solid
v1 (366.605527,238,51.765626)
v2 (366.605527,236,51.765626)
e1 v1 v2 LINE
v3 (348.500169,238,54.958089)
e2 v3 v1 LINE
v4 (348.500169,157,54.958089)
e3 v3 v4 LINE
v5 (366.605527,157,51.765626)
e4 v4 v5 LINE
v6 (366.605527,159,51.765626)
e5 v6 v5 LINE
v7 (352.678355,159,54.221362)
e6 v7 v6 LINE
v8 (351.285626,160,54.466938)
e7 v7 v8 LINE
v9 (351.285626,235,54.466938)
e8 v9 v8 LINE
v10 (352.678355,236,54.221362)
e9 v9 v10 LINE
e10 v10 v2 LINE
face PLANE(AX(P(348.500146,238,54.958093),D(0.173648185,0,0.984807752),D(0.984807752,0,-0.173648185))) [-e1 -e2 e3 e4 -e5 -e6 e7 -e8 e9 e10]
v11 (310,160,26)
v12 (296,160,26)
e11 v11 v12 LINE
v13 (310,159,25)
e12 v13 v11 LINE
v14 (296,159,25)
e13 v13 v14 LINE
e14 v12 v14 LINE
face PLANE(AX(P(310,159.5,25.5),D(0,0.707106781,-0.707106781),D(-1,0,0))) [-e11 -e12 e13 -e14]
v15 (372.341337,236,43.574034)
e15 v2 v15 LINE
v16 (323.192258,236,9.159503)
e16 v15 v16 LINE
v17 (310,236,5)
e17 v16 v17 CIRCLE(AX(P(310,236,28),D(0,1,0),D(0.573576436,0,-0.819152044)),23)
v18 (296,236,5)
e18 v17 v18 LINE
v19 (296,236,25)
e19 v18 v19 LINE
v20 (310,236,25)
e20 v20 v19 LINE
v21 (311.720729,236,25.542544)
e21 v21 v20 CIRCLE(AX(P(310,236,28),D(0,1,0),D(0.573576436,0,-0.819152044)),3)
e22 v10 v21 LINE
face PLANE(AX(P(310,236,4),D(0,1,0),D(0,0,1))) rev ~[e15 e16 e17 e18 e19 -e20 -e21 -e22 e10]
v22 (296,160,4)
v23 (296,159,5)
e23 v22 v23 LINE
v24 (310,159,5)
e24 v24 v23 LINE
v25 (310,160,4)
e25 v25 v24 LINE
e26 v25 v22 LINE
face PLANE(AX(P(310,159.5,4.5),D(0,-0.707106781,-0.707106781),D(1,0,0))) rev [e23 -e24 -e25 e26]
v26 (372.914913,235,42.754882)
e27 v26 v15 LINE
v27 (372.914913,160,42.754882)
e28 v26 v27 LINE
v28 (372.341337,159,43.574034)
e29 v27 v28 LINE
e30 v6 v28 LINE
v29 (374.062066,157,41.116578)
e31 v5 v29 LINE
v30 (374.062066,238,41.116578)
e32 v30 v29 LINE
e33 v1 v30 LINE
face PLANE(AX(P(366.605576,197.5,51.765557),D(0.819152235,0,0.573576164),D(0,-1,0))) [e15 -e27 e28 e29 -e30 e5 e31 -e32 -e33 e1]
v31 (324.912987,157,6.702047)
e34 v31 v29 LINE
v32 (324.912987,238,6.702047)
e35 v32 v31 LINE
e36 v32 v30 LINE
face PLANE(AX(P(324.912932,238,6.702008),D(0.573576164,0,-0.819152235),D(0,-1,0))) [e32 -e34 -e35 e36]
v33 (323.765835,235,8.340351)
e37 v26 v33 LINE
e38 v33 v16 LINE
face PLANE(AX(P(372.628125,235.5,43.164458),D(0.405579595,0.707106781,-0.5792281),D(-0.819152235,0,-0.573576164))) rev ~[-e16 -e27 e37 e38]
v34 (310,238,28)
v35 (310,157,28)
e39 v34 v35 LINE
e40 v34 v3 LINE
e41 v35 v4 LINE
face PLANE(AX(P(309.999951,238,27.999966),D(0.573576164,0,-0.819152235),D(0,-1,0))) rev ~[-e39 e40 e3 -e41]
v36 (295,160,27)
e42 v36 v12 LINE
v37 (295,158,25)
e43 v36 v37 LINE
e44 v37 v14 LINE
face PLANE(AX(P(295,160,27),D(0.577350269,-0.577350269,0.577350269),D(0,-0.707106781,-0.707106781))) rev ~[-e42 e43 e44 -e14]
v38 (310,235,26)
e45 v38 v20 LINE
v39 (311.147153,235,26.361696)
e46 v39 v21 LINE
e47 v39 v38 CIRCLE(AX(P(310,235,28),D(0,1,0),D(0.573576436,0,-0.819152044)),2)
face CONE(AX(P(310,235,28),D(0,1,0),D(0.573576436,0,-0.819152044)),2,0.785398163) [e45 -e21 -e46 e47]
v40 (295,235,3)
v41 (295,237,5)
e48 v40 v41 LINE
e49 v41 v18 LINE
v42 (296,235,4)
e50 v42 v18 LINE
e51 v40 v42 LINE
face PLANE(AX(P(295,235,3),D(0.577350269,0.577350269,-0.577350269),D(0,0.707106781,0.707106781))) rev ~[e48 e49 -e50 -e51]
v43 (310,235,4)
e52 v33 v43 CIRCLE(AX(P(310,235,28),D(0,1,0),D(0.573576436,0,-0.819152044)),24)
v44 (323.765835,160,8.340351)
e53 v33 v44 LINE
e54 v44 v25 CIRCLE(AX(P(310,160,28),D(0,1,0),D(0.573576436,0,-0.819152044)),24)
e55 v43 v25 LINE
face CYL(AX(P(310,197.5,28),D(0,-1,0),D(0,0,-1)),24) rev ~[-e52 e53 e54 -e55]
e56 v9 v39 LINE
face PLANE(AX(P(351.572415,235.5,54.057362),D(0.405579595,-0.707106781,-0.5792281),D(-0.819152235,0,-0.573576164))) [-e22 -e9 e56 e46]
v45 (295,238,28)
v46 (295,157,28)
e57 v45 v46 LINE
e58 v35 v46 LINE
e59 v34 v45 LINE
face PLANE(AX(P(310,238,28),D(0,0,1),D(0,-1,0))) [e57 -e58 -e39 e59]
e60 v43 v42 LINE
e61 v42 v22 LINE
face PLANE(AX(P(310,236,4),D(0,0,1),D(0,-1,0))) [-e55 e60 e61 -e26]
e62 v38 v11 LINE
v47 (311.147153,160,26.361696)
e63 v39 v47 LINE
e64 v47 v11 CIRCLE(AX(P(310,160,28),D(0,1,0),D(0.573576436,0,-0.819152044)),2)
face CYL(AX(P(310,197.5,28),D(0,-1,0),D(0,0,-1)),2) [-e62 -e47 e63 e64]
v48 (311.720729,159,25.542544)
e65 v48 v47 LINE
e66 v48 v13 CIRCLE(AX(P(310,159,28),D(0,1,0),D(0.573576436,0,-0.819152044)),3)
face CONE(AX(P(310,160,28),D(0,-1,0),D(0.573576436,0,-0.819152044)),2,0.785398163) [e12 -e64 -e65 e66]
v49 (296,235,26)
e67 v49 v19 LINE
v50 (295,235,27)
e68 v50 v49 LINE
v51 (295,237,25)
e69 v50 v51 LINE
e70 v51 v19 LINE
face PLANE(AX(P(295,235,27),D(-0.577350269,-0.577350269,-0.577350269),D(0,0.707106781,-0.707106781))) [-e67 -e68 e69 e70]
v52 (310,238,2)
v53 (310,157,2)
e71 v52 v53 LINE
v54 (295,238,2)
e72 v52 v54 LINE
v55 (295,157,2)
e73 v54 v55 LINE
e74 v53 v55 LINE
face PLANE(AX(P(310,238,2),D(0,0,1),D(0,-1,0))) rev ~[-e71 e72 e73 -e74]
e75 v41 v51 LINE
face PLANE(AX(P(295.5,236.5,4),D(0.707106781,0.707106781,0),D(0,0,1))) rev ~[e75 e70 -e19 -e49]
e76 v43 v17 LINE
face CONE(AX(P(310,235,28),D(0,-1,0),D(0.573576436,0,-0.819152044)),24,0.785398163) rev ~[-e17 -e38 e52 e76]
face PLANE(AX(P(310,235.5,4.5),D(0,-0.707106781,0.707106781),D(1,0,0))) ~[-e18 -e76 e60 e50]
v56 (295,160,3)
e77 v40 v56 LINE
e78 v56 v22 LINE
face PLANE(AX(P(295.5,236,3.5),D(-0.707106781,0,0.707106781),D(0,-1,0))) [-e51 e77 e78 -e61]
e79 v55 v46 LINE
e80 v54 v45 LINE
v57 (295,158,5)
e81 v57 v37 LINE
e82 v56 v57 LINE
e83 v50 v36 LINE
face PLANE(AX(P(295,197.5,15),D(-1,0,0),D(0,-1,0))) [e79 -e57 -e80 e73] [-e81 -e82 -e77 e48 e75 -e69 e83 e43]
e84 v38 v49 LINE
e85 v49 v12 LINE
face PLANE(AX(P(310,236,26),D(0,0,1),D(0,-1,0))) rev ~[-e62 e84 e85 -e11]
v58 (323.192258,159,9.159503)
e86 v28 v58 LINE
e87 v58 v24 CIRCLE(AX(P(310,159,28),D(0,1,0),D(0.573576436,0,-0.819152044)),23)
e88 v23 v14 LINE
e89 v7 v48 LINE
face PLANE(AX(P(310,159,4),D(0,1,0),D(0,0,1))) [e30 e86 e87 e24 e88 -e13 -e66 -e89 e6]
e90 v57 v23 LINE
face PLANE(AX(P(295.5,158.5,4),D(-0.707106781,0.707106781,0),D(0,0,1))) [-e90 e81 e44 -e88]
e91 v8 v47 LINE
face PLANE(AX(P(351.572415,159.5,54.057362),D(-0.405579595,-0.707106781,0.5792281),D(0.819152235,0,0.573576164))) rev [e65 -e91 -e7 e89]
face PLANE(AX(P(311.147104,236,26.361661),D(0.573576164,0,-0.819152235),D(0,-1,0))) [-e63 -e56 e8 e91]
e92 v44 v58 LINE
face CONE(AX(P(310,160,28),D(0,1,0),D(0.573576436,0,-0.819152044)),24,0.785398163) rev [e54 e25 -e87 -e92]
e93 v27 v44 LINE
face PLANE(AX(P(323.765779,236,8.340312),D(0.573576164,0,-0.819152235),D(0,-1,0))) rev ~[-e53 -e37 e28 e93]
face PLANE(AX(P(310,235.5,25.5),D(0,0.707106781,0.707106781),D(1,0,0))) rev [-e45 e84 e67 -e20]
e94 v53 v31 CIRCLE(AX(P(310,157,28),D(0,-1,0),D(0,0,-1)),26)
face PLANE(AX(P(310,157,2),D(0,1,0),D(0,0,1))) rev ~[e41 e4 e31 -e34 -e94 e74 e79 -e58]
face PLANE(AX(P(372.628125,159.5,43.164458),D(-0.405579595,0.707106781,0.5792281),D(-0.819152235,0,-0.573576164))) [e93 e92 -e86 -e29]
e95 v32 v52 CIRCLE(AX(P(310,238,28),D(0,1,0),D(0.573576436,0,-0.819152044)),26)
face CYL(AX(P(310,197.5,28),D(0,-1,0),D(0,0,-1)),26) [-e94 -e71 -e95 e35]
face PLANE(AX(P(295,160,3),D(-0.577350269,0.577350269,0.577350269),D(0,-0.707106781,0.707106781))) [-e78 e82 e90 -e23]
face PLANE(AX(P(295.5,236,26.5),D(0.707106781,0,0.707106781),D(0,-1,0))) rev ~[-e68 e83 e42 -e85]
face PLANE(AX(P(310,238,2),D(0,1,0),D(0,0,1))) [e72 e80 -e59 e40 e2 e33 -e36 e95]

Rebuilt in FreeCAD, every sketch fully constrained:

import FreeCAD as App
import Part
import Sketcher

V = App.Vector
Q = App.Units.Quantity


def edges_at(feature, points):
    """Names of the edges that pass closest to the given points."""
    edges = feature.Shape.Edges
    near = lambda p: min(range(len(edges)), key=lambda i: edges[i].distToShape(Part.Vertex(*p))[0])
    return sorted({f"Edge{near(p) + 1}" for p in points})


def add_polygon(sketch, points):
    """Adds a closed chain of lines whose ends are joined by coincident constraints."""
    first, n = sketch.GeometryCount, len(points)
    for a, b in zip(points, points[1:] + points[:1]):
        sketch.addGeometry(Part.LineSegment(App.Vector(*a, 0), App.Vector(*b, 0)), False)
    for i in range(n):
        sketch.addConstraint(Sketcher.Constraint("Coincident", first + i, 2, first + (i + 1) % n, 1))

doc = App.newDocument("Part")
body = doc.addObject("PartDesign::Body", "Body")

# Sketch on YZ plane
sketch1 = body.newObject("Sketcher::SketchObject", "Sketch")
sketch1.AttachmentSupport = (doc.getObject("YZ_Plane"), [""])
sketch1.MapMode = "FlatFace"
sketch1.AttachmentOffset = App.Placement(V(0, 0, 310), App.Rotation())
add_polygon(sketch1, [(157, 28), (157, 2), (238, 2), (238, 28)])  # lines 0-3
add_polygon(sketch1, [(236, 4), (159, 4), (159, 26), (236, 26)])  # lines 4-7
sketch1.addGeometry(Part.LineSegment(V(157, 2, 0), V(238, 2, 0)), True)  # axis
sketch1.addConstraint([
    Sketcher.Constraint("Vertical", 0),
    Sketcher.Constraint("Horizontal", 1),
    Sketcher.Constraint("Vertical", 2),
    Sketcher.Constraint("Horizontal", 3),
    Sketcher.Constraint("Horizontal", 4),
    Sketcher.Constraint("Vertical", 5),
    Sketcher.Constraint("Horizontal", 6),
    Sketcher.Constraint("Vertical", 7),
    Sketcher.Constraint("Horizontal", 8),
    Sketcher.Constraint("Coincident", 8, 1, 0, 2),
    Sketcher.Constraint("Vertical", 2, 2, 8, 2),
    Sketcher.Constraint("DistanceX", 1, 1, 1, 2, Q("81 mm")),
    Sketcher.Constraint("DistanceX", 4, 2, 4, 1, Q("77 mm")),
    Sketcher.Constraint("DistanceY", 0, 2, 0, 1, Q("26 mm")),
    Sketcher.Constraint("DistanceY", 5, 1, 5, 2, Q("22 mm")),
    Sketcher.Constraint("DistanceX", -1, 1, 0, 2, Q("157 mm")),
    Sketcher.Constraint("DistanceY", -1, 1, 0, 2, Q("2 mm")),
    Sketcher.Constraint("DistanceX", -1, 1, 4, 2, Q("159 mm")),
    Sketcher.Constraint("DistanceY", -1, 1, 4, 2, Q("4 mm")),
])
revolution = body.newObject("PartDesign::Revolution", "Revolution")
revolution.Profile = sketch1
revolution.ReferenceAxis = (sketch1, ["Axis0"])
revolution.Angle = 35

# Sketch on an angled plane
sketch2 = body.newObject("Sketcher::SketchObject", "Sketch001")
sketch2.Placement = App.Placement(V(207.07343, 0, -144.994376), App.Rotation(V(0, 1, 0), V(0.573576164, 0, 0.819152235), V(0.819152235, 0, -0.573576164), "ZXY"))
add_polygon(sketch2, [(157, 205), (157, 179), (238, 179), (238, 205)])  # lines 0-3
add_polygon(sketch2, [(236, 181), (159, 181), (159, 203), (236, 203)])  # lines 4-7
sketch2.addConstraint([
    Sketcher.Constraint("Vertical", 0),
    Sketcher.Constraint("Horizontal", 1),
    Sketcher.Constraint("Vertical", 2),
    Sketcher.Constraint("Horizontal", 3),
    Sketcher.Constraint("Horizontal", 4),
    Sketcher.Constraint("Vertical", 5),
    Sketcher.Constraint("Horizontal", 6),
    Sketcher.Constraint("Vertical", 7),
    Sketcher.Constraint("DistanceX", 1, 1, 1, 2, Q("81 mm")),
    Sketcher.Constraint("DistanceX", 4, 2, 4, 1, Q("77 mm")),
    Sketcher.Constraint("DistanceY", 0, 2, 0, 1, Q("26 mm")),
    Sketcher.Constraint("DistanceY", 5, 1, 5, 2, Q("22 mm")),
    Sketcher.Constraint("DistanceX", -1, 1, 0, 2, Q("157 mm")),
    Sketcher.Constraint("DistanceX", -1, 1, 4, 2, Q("159 mm")),
    Sketcher.Constraint("DistanceY", 0, 2, 4, 2, Q("2 mm")),
    Sketcher.Constraint("DistanceY", -1, 1, 0, 2, Q("179.446999 mm")),
])
pad1 = body.newObject("PartDesign::Pad", "Pad")
pad1.Profile = sketch2
pad1.Length = 60

# Sketch on XZ plane
sketch3 = body.newObject("Sketcher::SketchObject", "Sketch002")
sketch3.AttachmentSupport = (doc.getObject("XZ_Plane"), [""])
sketch3.MapMode = "FlatFace"
sketch3.AttachmentOffset = App.Placement(V(0, 0, -157), App.Rotation())
add_polygon(sketch3, [(359, -32), (367, -22), (349, -25)])  # lines 0-2
sketch3.addConstraint([
    Sketcher.Constraint("Perpendicular", 0, 2),
    Sketcher.Constraint("Equal", 0, 2),
    Sketcher.Constraint("Angle", 0, Q("55.000001 deg")),
    Sketcher.Constraint("Distance", 0, Q("12.999999 mm")),
    Sketcher.Constraint("DistanceY", 0, 2, -1, 1, Q("21.76561 mm")),
    Sketcher.Constraint("DistanceX", -1, 1, 0, 2, Q("366.605616 mm")),
])
pocket1 = body.newObject("PartDesign::Pocket", "Pocket")
pocket1.Profile = sketch3
pocket1.Type = "ThroughAll"

# Sketch on YZ plane
sketch4 = body.newObject("Sketcher::SketchObject", "Sketch003")
sketch4.AttachmentSupport = (doc.getObject("YZ_Plane"), [""])
sketch4.MapMode = "FlatFace"
sketch4.AttachmentOffset = App.Placement(V(0, 0, 310), App.Rotation())
add_polygon(sketch4, [(157, 2), (157, 28), (238, 28), (238, 2)])  # lines 0-3
add_polygon(sketch4, [(236, 26), (159, 26), (159, 4), (236, 4)])  # lines 4-7
sketch4.addConstraint([
    Sketcher.Constraint("Vertical", 0),
    Sketcher.Constraint("Horizontal", 1),
    Sketcher.Constraint("Vertical", 2),
    Sketcher.Constraint("Horizontal", 3),
    Sketcher.Constraint("Horizontal", 4),
    Sketcher.Constraint("Vertical", 5),
    Sketcher.Constraint("Horizontal", 6),
    Sketcher.Constraint("Vertical", 7),
    Sketcher.Constraint("DistanceX", 1, 1, 1, 2, Q("81 mm")),
    Sketcher.Constraint("DistanceX", 4, 2, 4, 1, Q("77 mm")),
    Sketcher.Constraint("DistanceY", 0, 1, 0, 2, Q("26 mm")),
    Sketcher.Constraint("DistanceY", 5, 2, 5, 1, Q("22 mm")),
    Sketcher.Constraint("DistanceX", -1, 1, 0, 2, Q("157 mm")),
    Sketcher.Constraint("DistanceY", -1, 1, 0, 2, Q("28 mm")),
    Sketcher.Constraint("DistanceX", -1, 1, 4, 2, Q("159 mm")),
    Sketcher.Constraint("DistanceY", -1, 1, 4, 2, Q("26 mm")),
])
pad2 = body.newObject("PartDesign::Pad", "Pad001")
pad2.Profile = sketch4
pad2.Length = 15
pad2.Reversed = True
doc.recompute()

chamfer = body.newObject("PartDesign::Chamfer", "Chamfer")
chamfer.Base = (pad2, edges_at(pad2, [
    (302.5, 159, 4),
    (295, 197.5, 4),
    (295, 159, 15),
    (302.5, 159, 26),
    (295, 197.5, 26),
    (295, 236, 15),
    (302.5, 236, 26),
    (317.217, 236, 24.889),
    (317.217, 159, 24.889),
    (310.601, 159, 3.907),
    (331.216, 159, -10.414),
    (310.601, 236, 3.907),
    (331.216, 236, -10.414),
    (348.34, 236, 4.452),
    (348.34, 159, 4.452),
]))
chamfer.Size = 1
body2 = doc.addObject("PartDesign::Body", "Body001")
doc.recompute()

body.Placement = App.Placement(V(0, 395, 30), App.Rotation(V(1, 0, 0), 180))
boolean = body2.newObject("PartDesign::Boolean", "Boolean")
boolean.Type = "Fuse"
boolean.addObjects([body])

doc.recompute()
